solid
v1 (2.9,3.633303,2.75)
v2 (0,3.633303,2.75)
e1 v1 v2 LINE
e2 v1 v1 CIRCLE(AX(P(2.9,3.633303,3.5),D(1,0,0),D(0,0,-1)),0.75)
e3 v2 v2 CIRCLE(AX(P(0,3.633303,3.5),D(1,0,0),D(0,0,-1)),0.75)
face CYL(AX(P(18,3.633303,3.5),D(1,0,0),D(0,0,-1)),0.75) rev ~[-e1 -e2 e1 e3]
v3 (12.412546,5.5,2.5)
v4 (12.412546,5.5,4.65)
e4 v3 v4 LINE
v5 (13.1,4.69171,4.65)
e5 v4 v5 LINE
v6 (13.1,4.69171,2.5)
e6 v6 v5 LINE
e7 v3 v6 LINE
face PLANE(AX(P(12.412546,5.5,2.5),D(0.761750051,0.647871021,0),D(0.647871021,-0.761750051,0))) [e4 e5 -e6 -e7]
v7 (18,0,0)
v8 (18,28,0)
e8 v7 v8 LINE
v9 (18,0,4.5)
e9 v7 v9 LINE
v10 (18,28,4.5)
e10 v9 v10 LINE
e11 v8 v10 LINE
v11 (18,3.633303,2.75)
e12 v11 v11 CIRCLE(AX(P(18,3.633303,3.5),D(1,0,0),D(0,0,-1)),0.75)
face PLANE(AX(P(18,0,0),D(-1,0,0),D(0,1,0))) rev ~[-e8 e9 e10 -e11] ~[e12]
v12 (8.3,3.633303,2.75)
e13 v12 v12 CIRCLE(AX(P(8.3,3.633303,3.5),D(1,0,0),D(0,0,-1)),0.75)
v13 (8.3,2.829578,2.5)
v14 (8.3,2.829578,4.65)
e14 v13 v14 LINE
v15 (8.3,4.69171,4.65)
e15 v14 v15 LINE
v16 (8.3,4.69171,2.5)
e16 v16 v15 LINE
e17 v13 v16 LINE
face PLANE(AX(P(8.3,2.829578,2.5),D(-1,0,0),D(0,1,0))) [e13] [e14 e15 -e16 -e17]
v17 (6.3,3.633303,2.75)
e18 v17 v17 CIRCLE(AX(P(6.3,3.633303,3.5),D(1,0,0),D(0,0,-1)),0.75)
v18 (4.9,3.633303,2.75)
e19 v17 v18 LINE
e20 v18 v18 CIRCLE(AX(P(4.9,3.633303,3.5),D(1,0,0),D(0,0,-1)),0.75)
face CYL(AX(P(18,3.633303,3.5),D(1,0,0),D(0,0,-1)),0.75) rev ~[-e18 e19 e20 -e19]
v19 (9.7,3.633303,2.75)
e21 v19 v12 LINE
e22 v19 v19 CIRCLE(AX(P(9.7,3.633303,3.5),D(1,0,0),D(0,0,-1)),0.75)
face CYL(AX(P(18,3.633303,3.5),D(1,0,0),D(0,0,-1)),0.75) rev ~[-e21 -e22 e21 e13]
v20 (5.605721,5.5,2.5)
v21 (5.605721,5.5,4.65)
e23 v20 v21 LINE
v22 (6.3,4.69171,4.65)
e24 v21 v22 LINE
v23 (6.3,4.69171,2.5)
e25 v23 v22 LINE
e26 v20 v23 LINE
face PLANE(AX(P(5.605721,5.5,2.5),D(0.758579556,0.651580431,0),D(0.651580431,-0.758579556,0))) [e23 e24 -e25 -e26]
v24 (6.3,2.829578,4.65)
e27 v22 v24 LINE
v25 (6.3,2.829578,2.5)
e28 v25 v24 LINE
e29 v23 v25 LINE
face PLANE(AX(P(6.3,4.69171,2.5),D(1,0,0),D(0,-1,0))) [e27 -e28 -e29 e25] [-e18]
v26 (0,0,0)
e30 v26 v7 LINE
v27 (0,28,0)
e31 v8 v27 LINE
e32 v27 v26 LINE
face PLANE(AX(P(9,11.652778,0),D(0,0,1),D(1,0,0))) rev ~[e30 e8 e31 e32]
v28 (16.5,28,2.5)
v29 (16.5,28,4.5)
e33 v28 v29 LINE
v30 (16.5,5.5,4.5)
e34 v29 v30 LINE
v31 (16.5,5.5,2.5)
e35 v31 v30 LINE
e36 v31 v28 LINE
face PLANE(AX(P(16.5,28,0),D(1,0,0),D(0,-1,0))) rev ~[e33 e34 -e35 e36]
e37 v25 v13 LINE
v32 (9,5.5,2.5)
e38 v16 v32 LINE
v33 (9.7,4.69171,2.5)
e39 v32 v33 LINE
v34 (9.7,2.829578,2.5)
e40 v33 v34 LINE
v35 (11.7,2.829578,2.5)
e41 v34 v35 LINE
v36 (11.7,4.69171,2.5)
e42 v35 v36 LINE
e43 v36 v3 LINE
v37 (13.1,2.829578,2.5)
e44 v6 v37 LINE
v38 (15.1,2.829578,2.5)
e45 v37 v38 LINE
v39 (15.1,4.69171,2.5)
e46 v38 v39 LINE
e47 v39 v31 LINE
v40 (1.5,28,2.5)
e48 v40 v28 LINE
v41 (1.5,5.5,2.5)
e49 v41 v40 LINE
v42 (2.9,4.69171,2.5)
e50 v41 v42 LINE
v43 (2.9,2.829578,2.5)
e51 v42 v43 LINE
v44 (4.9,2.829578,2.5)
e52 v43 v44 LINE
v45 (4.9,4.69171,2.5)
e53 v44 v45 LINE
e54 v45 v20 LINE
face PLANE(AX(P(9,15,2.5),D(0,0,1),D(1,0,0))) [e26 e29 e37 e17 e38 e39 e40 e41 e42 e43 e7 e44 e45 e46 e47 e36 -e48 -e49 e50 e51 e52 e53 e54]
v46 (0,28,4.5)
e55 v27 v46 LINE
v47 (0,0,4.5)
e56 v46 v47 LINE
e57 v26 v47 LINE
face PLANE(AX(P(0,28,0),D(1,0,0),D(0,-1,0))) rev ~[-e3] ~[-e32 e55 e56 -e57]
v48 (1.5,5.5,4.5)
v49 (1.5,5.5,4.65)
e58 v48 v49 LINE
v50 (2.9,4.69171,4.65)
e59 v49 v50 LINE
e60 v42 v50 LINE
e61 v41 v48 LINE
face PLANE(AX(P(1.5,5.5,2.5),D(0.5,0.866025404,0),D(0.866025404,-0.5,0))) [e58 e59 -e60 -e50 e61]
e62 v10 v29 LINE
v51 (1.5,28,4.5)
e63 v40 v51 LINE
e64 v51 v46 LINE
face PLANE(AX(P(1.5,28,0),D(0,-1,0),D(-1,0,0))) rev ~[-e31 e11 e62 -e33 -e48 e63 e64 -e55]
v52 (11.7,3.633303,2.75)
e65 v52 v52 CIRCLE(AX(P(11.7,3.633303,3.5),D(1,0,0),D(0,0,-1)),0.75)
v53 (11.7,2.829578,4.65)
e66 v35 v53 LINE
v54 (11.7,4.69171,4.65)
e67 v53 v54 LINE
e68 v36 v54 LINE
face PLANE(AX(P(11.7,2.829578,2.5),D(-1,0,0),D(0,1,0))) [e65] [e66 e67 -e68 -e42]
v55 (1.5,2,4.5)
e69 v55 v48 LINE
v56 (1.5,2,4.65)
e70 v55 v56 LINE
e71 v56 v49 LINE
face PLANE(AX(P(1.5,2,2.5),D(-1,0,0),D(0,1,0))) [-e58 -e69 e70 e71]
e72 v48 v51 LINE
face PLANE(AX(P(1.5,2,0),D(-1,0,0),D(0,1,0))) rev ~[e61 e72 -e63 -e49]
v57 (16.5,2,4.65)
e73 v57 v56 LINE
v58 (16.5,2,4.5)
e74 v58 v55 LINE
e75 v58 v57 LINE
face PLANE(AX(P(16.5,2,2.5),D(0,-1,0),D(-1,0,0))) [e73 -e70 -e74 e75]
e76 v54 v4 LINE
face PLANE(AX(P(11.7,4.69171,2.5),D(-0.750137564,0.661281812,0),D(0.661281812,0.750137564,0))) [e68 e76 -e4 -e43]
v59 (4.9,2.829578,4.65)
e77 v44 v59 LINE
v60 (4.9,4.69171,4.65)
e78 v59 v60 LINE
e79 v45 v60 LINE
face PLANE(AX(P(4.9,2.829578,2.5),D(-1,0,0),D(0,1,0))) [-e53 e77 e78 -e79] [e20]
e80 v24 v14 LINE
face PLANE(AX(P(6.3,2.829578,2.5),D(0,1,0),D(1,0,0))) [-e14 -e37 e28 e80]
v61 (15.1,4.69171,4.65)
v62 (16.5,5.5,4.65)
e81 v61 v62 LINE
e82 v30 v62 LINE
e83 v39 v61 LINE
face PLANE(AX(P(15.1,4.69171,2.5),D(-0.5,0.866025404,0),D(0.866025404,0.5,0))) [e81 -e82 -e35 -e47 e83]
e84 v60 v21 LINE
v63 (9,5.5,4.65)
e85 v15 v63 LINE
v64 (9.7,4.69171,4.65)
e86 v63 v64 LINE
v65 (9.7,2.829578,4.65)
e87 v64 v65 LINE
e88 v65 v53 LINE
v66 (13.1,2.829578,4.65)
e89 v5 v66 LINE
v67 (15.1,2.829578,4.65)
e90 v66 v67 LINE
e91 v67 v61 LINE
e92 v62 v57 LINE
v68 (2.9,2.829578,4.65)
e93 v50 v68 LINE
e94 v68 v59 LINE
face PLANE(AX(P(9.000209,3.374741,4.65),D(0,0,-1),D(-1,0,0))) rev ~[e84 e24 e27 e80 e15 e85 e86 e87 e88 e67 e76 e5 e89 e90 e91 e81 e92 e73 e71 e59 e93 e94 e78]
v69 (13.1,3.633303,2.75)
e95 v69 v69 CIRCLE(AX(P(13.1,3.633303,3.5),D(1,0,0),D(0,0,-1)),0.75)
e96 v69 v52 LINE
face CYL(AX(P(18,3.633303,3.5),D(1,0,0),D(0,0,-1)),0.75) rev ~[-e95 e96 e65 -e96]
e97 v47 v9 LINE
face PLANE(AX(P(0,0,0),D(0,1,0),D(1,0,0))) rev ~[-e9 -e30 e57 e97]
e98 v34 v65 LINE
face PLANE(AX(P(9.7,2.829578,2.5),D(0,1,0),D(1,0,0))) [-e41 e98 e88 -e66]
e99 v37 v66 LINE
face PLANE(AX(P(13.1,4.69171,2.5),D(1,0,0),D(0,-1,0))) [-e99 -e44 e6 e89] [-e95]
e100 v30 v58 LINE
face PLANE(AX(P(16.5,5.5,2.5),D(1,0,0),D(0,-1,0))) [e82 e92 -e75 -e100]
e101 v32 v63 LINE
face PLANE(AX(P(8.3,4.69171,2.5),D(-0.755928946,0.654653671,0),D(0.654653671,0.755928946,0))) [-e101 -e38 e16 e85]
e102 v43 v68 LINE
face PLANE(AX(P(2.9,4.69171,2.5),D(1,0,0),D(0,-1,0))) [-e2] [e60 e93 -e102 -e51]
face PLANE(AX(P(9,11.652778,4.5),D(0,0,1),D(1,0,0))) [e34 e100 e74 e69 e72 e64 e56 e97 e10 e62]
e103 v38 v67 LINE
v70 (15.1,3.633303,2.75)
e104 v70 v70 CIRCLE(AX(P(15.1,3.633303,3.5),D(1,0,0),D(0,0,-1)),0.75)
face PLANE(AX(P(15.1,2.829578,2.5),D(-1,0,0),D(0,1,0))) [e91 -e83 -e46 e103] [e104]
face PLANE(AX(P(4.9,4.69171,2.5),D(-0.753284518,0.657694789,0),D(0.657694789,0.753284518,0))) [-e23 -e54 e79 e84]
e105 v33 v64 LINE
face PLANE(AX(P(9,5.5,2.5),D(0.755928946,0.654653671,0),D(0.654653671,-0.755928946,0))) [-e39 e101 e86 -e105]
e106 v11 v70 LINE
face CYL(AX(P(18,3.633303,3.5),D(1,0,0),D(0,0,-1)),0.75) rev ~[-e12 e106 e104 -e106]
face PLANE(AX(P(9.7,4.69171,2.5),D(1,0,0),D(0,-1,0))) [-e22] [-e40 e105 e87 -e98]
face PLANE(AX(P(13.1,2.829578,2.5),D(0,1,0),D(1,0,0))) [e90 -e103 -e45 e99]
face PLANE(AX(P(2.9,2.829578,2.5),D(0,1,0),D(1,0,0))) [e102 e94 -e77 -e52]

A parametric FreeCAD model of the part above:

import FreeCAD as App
import Part
import Sketcher
Q = App.Units.Quantity

doc = App.newDocument("Part")
body = doc.addObject("PartDesign::Body", "Body")

sketch1 = body.newObject("Sketcher::SketchObject", "Sketch")
sketch1.AttachmentSupport = (doc.getObject("XY_Plane"), [""])
sketch1.MapMode = "FlatFace"
sketch1.addGeometry(Part.LineSegment(App.Vector(2, 28, 0), App.Vector(2, 2, 0)), False)
sketch1.addGeometry(Part.LineSegment(App.Vector(2, 2, 0), App.Vector(16, 2, 0)), False)
sketch1.addGeometry(Part.LineSegment(App.Vector(16, 2, 0), App.Vector(16, 28, 0)), False)
sketch1.addGeometry(Part.LineSegment(App.Vector(16, 28, 0), App.Vector(2, 28, 0)), False)
sketch1.addConstraint(Sketcher.Constraint("Coincident", 0, 2, 1, 1))
sketch1.addConstraint(Sketcher.Constraint("Coincident", 1, 2, 2, 1))
sketch1.addConstraint(Sketcher.Constraint("Coincident", 2, 2, 3, 1))
sketch1.addConstraint(Sketcher.Constraint("Coincident", 3, 2, 0, 1))
sketch1.addConstraint(Sketcher.Constraint("Vertical", 0))
sketch1.addConstraint(Sketcher.Constraint("Horizontal", 1))
sketch1.addConstraint(Sketcher.Constraint("Vertical", 2))
sketch1.addConstraint(Sketcher.Constraint("Horizontal", 3))
sketch1.addConstraint(Sketcher.Constraint("DistanceX", 1, 1, 1, 2, 15.0))
sketch1.addConstraint(Sketcher.Constraint("DistanceY", 0, 2, 0, 1, 26.0))
sketch1.addConstraint(Sketcher.Constraint("DistanceY", -1, 1, 0, 2, 2.0))
sketch1.addConstraint(Sketcher.Constraint("DistanceX", -1, 1, 0, 2, 1.5))
pad1 = body.newObject("PartDesign::Pad", "Pad")
pad1.Profile = sketch1
pad1.Length = 2.5

sketch2 = body.newObject("Sketcher::SketchObject", "Sketch001")
sketch2.AttachmentSupport = (doc.getObject("XY_Plane"), [""])
sketch2.MapMode = "FlatFace"
sketch2.addGeometry(Part.LineSegment(App.Vector(1.5, 2, 0), App.Vector(1.5, 28, 0)), False)
sketch2.addGeometry(Part.LineSegment(App.Vector(1.5, 28, 0), App.Vector(0, 28, 0)), False)
sketch2.addGeometry(Part.LineSegment(App.Vector(0, 28, 0), App.Vector(0, 0, 0)), False)
sketch2.addGeometry(Part.LineSegment(App.Vector(0, 0, 0), App.Vector(18, 0, 0)), False)
sketch2.addGeometry(Part.LineSegment(App.Vector(18, 0, 0), App.Vector(18, 28, 0)), False)
sketch2.addGeometry(Part.LineSegment(App.Vector(18, 28, 0), App.Vector(16.5, 28, 0)), False)
sketch2.addGeometry(Part.LineSegment(App.Vector(16.5, 28, 0), App.Vector(16.5, 2, 0)), False)
sketch2.addGeometry(Part.LineSegment(App.Vector(16.5, 2, 0), App.Vector(1.5, 2, 0)), False)
sketch2.addConstraint(Sketcher.Constraint("Coincident", 0, 2, 1, 1))
sketch2.addConstraint(Sketcher.Constraint("Coincident", 1, 2, 2, 1))
sketch2.addConstraint(Sketcher.Constraint("Coincident", 2, 2, 3, 1))
sketch2.addConstraint(Sketcher.Constraint("Coincident", 3, 2, 4, 1))
sketch2.addConstraint(Sketcher.Constraint("Coincident", 4, 2, 5, 1))
sketch2.addConstraint(Sketcher.Constraint("Coincident", 5, 2, 6, 1))
sketch2.addConstraint(Sketcher.Constraint("Coincident", 6, 2, 7, 1))
sketch2.addConstraint(Sketcher.Constraint("Coincident", 7, 2, 0, 1))
sketch2.addConstraint(Sketcher.Constraint("Vertical", 0))
sketch2.addConstraint(Sketcher.Constraint("Horizontal", 1))
sketch2.addConstraint(Sketcher.Constraint("Vertical", 2))
sketch2.addConstraint(Sketcher.Constraint("Horizontal", 3))
sketch2.addConstraint(Sketcher.Constraint("Vertical", 4))
sketch2.addConstraint(Sketcher.Constraint("Horizontal", 5))
sketch2.addConstraint(Sketcher.Constraint("Vertical", 6))
sketch2.addConstraint(Sketcher.Constraint("Horizontal", 7))
sketch2.addConstraint(Sketcher.Constraint("Coincident", 2, 2, -1, 1))
sketch2.addConstraint(Sketcher.Constraint("Horizontal", 1, 2, 4, 2))
sketch2.addConstraint(Sketcher.Constraint("Equal", 1, 5))
sketch2.addConstraint(Sketcher.Constraint("DistanceX", 3, 1, 3, 2, 18.0))
sketch2.addConstraint(Sketcher.Constraint("DistanceX", 7, 2, 7, 1, 15.0))
sketch2.addConstraint(Sketcher.Constraint("DistanceY", 0, 1, 0, 2, 26.0))
sketch2.addConstraint(Sketcher.Constraint("DistanceY", 2, 2, 2, 1, 28.0))
pad2 = body.newObject("PartDesign::Pad", "Pad001")
pad2.Profile = sketch2
pad2.Length = 4.5

sketch3 = body.newObject("Sketcher::SketchObject", "Sketch002")
sketch3.AttachmentSupport = (doc.getObject("XY_Plane"), [""])
sketch3.MapMode = "FlatFace"
sketch3.AttachmentOffset = App.Placement(App.Vector(0, 0, 2.5), App.Rotation())
sketch3.addGeometry(Part.LineSegment(App.Vector(1.5, 5.5, 0), App.Vector(1.5, 2, 0)), False)
sketch3.addGeometry(Part.LineSegment(App.Vector(1.5, 2, 0), App.Vector(16.5, 2, 0)), False)
sketch3.addGeometry(Part.LineSegment(App.Vector(16.5, 2, 0), App.Vector(16.5, 5.5, 0)), False)
sketch3.addGeometry(Part.LineSegment(App.Vector(16.5, 5.5, 0), App.Vector(15.1, 4.7, 0)), False)
sketch3.addGeometry(Part.LineSegment(App.Vector(15.1, 4.7, 0), App.Vector(15.1, 2.8, 0)), False)
sketch3.addGeometry(Part.LineSegment(App.Vector(15.1, 2.8, 0), App.Vector(13.1, 2.8, 0)), False)
sketch3.addGeometry(Part.LineSegment(App.Vector(13.1, 2.8, 0), App.Vector(13.1, 4.7, 0)), False)
sketch3.addGeometry(Part.LineSegment(App.Vector(13.1, 4.7, 0), App.Vector(12.4, 5.5, 0)), False)
sketch3.addGeometry(Part.LineSegment(App.Vector(12.4, 5.5, 0), App.Vector(11.7, 4.7, 0)), False)
sketch3.addGeometry(Part.LineSegment(App.Vector(11.7, 4.7, 0), App.Vector(11.7, 2.8, 0)), False)
sketch3.addGeometry(Part.LineSegment(App.Vector(11.7, 2.8, 0), App.Vector(9.7, 2.8, 0)), False)
sketch3.addGeometry(Part.LineSegment(App.Vector(9.7, 2.8, 0), App.Vector(9.7, 4.7, 0)), False)
sketch3.addGeometry(Part.LineSegment(App.Vector(9.7, 4.7, 0), App.Vector(9, 5.5, 0)), False)
sketch3.addGeometry(Part.LineSegment(App.Vector(9, 5.5, 0), App.Vector(8.3, 4.7, 0)), False)
sketch3.addGeometry(Part.LineSegment(App.Vector(8.3, 4.7, 0), App.Vector(8.3, 2.8, 0)), False)
sketch3.addGeometry(Part.LineSegment(App.Vector(8.3, 2.8, 0), App.Vector(6.3, 2.8, 0)), False)
sketch3.addGeometry(Part.LineSegment(App.Vector(6.3, 2.8, 0), App.Vector(6.3, 4.7, 0)), False)
sketch3.addGeometry(Part.LineSegment(App.Vector(6.3, 4.7, 0), App.Vector(5.6, 5.5, 0)), False)
sketch3.addGeometry(Part.LineSegment(App.Vector(5.6, 5.5, 0), App.Vector(4.9, 4.7, 0)), False)
sketch3.addGeometry(Part.LineSegment(App.Vector(4.9, 4.7, 0), App.Vector(4.9, 2.8, 0)), False)
sketch3.addGeometry(Part.LineSegment(App.Vector(4.9, 2.8, 0), App.Vector(2.9, 2.8, 0)), False)
sketch3.addGeometry(Part.LineSegment(App.Vector(2.9, 2.8, 0), App.Vector(2.9, 4.7, 0)), False)
sketch3.addGeometry(Part.LineSegment(App.Vector(2.9, 4.7, 0), App.Vector(1.5, 5.5, 0)), False)
sketch3.addConstraint(Sketcher.Constraint("Coincident", 0, 2, 1, 1))
sketch3.addConstraint(Sketcher.Constraint("Coincident", 1, 2, 2, 1))
sketch3.addConstraint(Sketcher.Constraint("Coincident", 2, 2, 3, 1))
sketch3.addConstraint(Sketcher.Constraint("Coincident", 3, 2, 4, 1))
sketch3.addConstraint(Sketcher.Constraint("Coincident", 4, 2, 5, 1))
sketch3.addConstraint(Sketcher.Constraint("Coincident", 5, 2, 6, 1))
sketch3.addConstraint(Sketcher.Constraint("Coincident", 6, 2, 7, 1))
sketch3.addConstraint(Sketcher.Constraint("Coincident", 7, 2, 8, 1))
sketch3.addConstraint(Sketcher.Constraint("Coincident", 8, 2, 9, 1))
sketch3.addConstraint(Sketcher.Constraint("Coincident", 9, 2, 10, 1))
sketch3.addConstraint(Sketcher.Constraint("Coincident", 10, 2, 11, 1))
sketch3.addConstraint(Sketcher.Constraint("Coincident", 11, 2, 12, 1))
sketch3.addConstraint(Sketcher.Constraint("Coincident", 12, 2, 13, 1))
sketch3.addConstraint(Sketcher.Constraint("Coincident", 13, 2, 14, 1))
sketch3.addConstraint(Sketcher.Constraint("Coincident", 14, 2, 15, 1))
sketch3.addConstraint(Sketcher.Constraint("Coincident", 15, 2, 16, 1))
sketch3.addConstraint(Sketcher.Constraint("Coincident", 16, 2, 17, 1))
sketch3.addConstraint(Sketcher.Constraint("Coincident", 17, 2, 18, 1))
sketch3.addConstraint(Sketcher.Constraint("Coincident", 18, 2, 19, 1))
sketch3.addConstraint(Sketcher.Constraint("Coincident", 19, 2, 20, 1))
sketch3.addConstraint(Sketcher.Constraint("Coincident", 20, 2, 21, 1))
sketch3.addConstraint(Sketcher.Constraint("Coincident", 21, 2, 22, 1))
sketch3.addConstraint(Sketcher.Constraint("Coincident", 22, 2, 0, 1))
sketch3.addConstraint(Sketcher.Constraint("Vertical", 0))
sketch3.addConstraint(Sketcher.Constraint("Horizontal", 1))
sketch3.addConstraint(Sketcher.Constraint("Vertical", 2))
sketch3.addConstraint(Sketcher.Constraint("Vertical", 4))
sketch3.addConstraint(Sketcher.Constraint("Horizontal", 5))
sketch3.addConstraint(Sketcher.Constraint("Vertical", 6))
sketch3.addConstraint(Sketcher.Constraint("Vertical", 9))
sketch3.addConstraint(Sketcher.Constraint("Horizontal", 10))
sketch3.addConstraint(Sketcher.Constraint("Vertical", 11))
sketch3.addConstraint(Sketcher.Constraint("Vertical", 14))
sketch3.addConstraint(Sketcher.Constraint("Horizontal", 15))
sketch3.addConstraint(Sketcher.Constraint("Vertical", 16))
sketch3.addConstraint(Sketcher.Constraint("Vertical", 19))
sketch3.addConstraint(Sketcher.Constraint("Horizontal", 20))
sketch3.addConstraint(Sketcher.Constraint("Vertical", 21))
sketch3.addConstraint(Sketcher.Constraint("Horizontal", 3, 2, 6, 2))
sketch3.addConstraint(Sketcher.Constraint("Horizontal", 2, 2, 7, 2))
sketch3.addConstraint(Sketcher.Constraint("Horizontal", 6, 2, 8, 2))
sketch3.addConstraint(Sketcher.Constraint("Horizontal", 5, 2, 9, 2))
sketch3.addConstraint(Sketcher.Constraint("Horizontal", 8, 2, 11, 2))
sketch3.addConstraint(Sketcher.Constraint("Horizontal", 7, 2, 12, 2))
sketch3.addConstraint(Sketcher.Constraint("Horizontal", 11, 2, 13, 2))
sketch3.addConstraint(Sketcher.Constraint("Horizontal", 10, 2, 14, 2))
sketch3.addConstraint(Sketcher.Constraint("Horizontal", 13, 2, 16, 2))
sketch3.addConstraint(Sketcher.Constraint("Horizontal", 12, 2, 17, 2))
sketch3.addConstraint(Sketcher.Constraint("Horizontal", 16, 2, 18, 2))
sketch3.addConstraint(Sketcher.Constraint("Horizontal", 15, 2, 19, 2))
sketch3.addConstraint(Sketcher.Constraint("Horizontal", 18, 2, 21, 2))
sketch3.addConstraint(Sketcher.Constraint("Horizontal", 17, 2, 22, 2))
sketch3.addConstraint(Sketcher.Constraint("Equal", 5, 10))
sketch3.addConstraint(Sketcher.Constraint("Equal", 10, 15))
sketch3.addConstraint(Sketcher.Constraint("Equal", 15, 20))
sketch3.addConstraint(Sketcher.Constraint("Equal", 12, 13))
sketch3.addConstraint(Sketcher.Constraint("Equal", 3, 22))
sketch3.addConstraint(Sketcher.Constraint("DistanceX", 1, 1, 1, 2, 15.0))
sketch3.addConstraint(Sketcher.Constraint("DistanceX", 5, 2, 5, 1, 2.0))
sketch3.addConstraint(Sketcher.Constraint("Angle", 3, Q("-150 deg")))
sketch3.addConstraint(Sketcher.Constraint("DistanceY", 0, 2, 0, 1, 3.5))
sketch3.addConstraint(Sketcher.Constraint("DistanceY", -1, 1, 0, 2, 2.0))
sketch3.addConstraint(Sketcher.Constraint("DistanceX", -1, 1, 12, 2, 9.0))
sketch3.addConstraint(Sketcher.Constraint("DistanceX", -1, 1, 0, 2, 1.5))
sketch3.addConstraint(Sketcher.Constraint("DistanceX", -1, 1, 3, 2, 15.1))
sketch3.addConstraint(Sketcher.Constraint("DistanceX", -1, 1, 8, 2, 11.7))
sketch3.addConstraint(Sketcher.Constraint("DistanceY", 4, 2, 4, 1, 1.862132))
sketch3.addConstraint(Sketcher.Constraint("Distance", 17, 1.065531))
sketch3.addConstraint(Sketcher.Constraint("Distance", 7, 1.061097))
pad3 = body.newObject("PartDesign::Pad", "Pad002")
pad3.Profile = sketch3
pad3.Length = 2.15

sketch4 = body.newObject("Sketcher::SketchObject", "Sketch003")
sketch4.AttachmentSupport = (doc.getObject("YZ_Plane"), [""])
sketch4.MapMode = "FlatFace"
sketch4.AttachmentOffset = App.Placement(App.Vector(0, 0, 18), App.Rotation())
sketch4.addGeometry(Part.Circle(App.Vector(3.6, 3.5, 0), App.Vector(0, 0, 1), 0.8), False)
sketch4.addConstraint(Sketcher.Constraint("Diameter", 0, 1.5))
sketch4.addConstraint(Sketcher.Constraint("DistanceY", -1, 1, 0, 3, 3.5))
sketch4.addConstraint(Sketcher.Constraint("DistanceX", -1, 1, 0, 3, 3.633303))
pocket1 = body.newObject("PartDesign::Pocket", "Pocket")
pocket1.Profile = sketch4
pocket1.Type = "ThroughAll"

doc.recompute()
